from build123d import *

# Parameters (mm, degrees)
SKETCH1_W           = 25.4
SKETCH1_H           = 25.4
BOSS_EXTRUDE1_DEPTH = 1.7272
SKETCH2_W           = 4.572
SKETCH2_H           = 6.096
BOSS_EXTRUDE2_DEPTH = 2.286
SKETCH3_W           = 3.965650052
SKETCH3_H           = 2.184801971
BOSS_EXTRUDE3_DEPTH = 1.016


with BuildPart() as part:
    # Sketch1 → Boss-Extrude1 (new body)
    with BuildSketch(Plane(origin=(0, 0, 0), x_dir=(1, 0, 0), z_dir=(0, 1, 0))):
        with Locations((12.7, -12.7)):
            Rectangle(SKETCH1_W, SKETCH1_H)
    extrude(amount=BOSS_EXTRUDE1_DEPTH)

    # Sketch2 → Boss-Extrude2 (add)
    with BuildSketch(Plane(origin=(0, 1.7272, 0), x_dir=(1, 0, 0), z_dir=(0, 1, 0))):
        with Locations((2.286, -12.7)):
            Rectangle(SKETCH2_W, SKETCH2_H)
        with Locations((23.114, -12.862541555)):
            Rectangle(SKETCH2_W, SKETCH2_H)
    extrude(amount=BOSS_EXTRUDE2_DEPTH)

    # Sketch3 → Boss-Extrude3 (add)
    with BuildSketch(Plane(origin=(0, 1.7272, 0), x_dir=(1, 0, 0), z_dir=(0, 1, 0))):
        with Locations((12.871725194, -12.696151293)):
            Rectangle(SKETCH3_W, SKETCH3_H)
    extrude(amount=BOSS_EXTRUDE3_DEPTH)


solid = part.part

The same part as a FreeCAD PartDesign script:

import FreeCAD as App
import Part
import Sketcher
from FreeCAD import Vector
Q = App.Units.Quantity


def add_polygon(sketch, points):
    """Adds a closed chain of lines whose ends are joined by coincident constraints."""
    first, n = sketch.GeometryCount, len(points)
    for a, b in zip(points, points[1:] + points[:1]):
        sketch.addGeometry(Part.LineSegment(App.Vector(*a, 0), App.Vector(*b, 0)), False)
    for i in range(n):
        sketch.addConstraint(Sketcher.Constraint("Coincident", first + i, 2, first + (i + 1) % n, 1))

doc = App.newDocument("Part")
params = doc.addObject("Spreadsheet::Sheet", "Params")
for row, (alias, value) in enumerate([
    ("sketch1_width", "1 in"),
    ("pad1_length", "0.068 in"),
    ("sketch2_width", "0.18 in"),
    ("sketch2_height", "0.24 in"),
    ("pad2_length", "0.09 in"),
    ("pad3_length", "0.04 in"),
], start=1):
    params.set(f"A{row}", alias)
    params.set(f"B{row}", "=" + value)
    params.setAlias(f"B{row}", alias)

body = doc.addObject("PartDesign::Body", "Body")

sketch1 = body.newObject("Sketcher::SketchObject", "Sketch")
sketch1.AttachmentSupport = (doc.getObject("XZ_Plane"), [""])
sketch1.MapMode = "FlatFace"
add_polygon(sketch1, [(0, 0), (0, 25), (25, 25), (25, 0)])
sketch1.addConstraint([
    Sketcher.Constraint("Vertical", 0),
    Sketcher.Constraint("Horizontal", 1),
    Sketcher.Constraint("Vertical", 2),
    Sketcher.Constraint("Horizontal", 3),
    Sketcher.Constraint("Coincident", 3, 2, -1, 1),
    Sketcher.Constraint("Equal", 3, 0),
    Sketcher.Constraint("DistanceX", 1, 1, 1, 2, Q("1 in")),
])
sketch1.setExpression("Constraints[10]", "Params.sketch1_width")
pad1 = body.newObject("PartDesign::Pad", "Pad")
pad1.Profile = sketch1
pad1.setExpression("Length", "Params.pad1_length")
pad1.Reversed = True

sketch2 = body.newObject("Sketcher::SketchObject", "Sketch001")
sketch2.AttachmentSupport = (doc.getObject("XZ_Plane"), [""])
sketch2.MapMode = "FlatFace"
sketch2.AttachmentOffset = App.Placement(Vector(0, 0, -0.068 * 25.4), App.Rotation())
add_polygon(sketch2, [(0, 9.7), (0, 15.7), (4.6, 15.7), (4.6, 9.7)])
add_polygon(sketch2, [(20.8, 9.8), (20.8, 15.9), (25.4, 15.9), (25.4, 9.8)])
sketch2.addConstraint([
    Sketcher.Constraint("Vertical", 0),
    Sketcher.Constraint("Horizontal", 1),
    Sketcher.Constraint("Vertical", 2),
    Sketcher.Constraint("Horizontal", 3),
    Sketcher.Constraint("Vertical", 4),
    Sketcher.Constraint("Horizontal", 5),
    Sketcher.Constraint("Vertical", 6),
    Sketcher.Constraint("Horizontal", 7),
    Sketcher.Constraint("PointOnObject", 0, 2, -2),
    Sketcher.Constraint("Equal", 3, 5),
    Sketcher.Constraint("Equal", 2, 4),
    Sketcher.Constraint("DistanceX", -1, 1, 5, 2, Q("1 in")),
    Sketcher.Constraint("DistanceX", 1, 1, 1, 2, Q("0.18 in")),
    Sketcher.Constraint("DistanceY", 0, 1, 0, 2, Q("0.24 in")),
    Sketcher.Constraint("DistanceY", -1, 1, 0, 2, Q("0.62 in")),
    Sketcher.Constraint("DistanceY", -1, 1, 4, 2, 15.910542),
])
sketch2.setExpression("Constraints[20]", "Params.sketch2_width")
sketch2.setExpression("Constraints[21]", "Params.sketch2_height")
pad2 = body.newObject("PartDesign::Pad", "Pad001")
pad2.Profile = sketch2
pad2.setExpression("Length", "Params.pad2_length")
pad2.Reversed = True

sketch3 = body.newObject("Sketcher::SketchObject", "Sketch002")
sketch3.AttachmentSupport = (doc.getObject("XZ_Plane"), [""])
sketch3.MapMode = "FlatFace"
sketch3.AttachmentOffset = App.Placement(Vector(0, 0, -0.068 * 25.4), App.Rotation())
add_polygon(sketch3, [(10.9, 11.6), (10.9, 13.8), (14.9, 13.8), (14.9, 11.6)])
sketch3.addConstraint([
    Sketcher.Constraint("Vertical", 0),
    Sketcher.Constraint("Horizontal", 1),
    Sketcher.Constraint("Vertical", 2),
    Sketcher.Constraint("Horizontal", 3),
    Sketcher.Constraint("DistanceY", 0, 1, 0, 2, 2.184802),
    Sketcher.Constraint("DistanceX", 1, 1, 1, 2, 3.96565),
    Sketcher.Constraint("DistanceX", -1, 1, 0, 2, 10.8889),
    Sketcher.Constraint("DistanceY", -1, 1, 2, 2, 11.60375),
])
pad3 = body.newObject("PartDesign::Pad", "Pad002")
pad3.Profile = sketch3
pad3.setExpression("Length", "Params.pad3_length")
pad3.Reversed = True

doc.recompute()
